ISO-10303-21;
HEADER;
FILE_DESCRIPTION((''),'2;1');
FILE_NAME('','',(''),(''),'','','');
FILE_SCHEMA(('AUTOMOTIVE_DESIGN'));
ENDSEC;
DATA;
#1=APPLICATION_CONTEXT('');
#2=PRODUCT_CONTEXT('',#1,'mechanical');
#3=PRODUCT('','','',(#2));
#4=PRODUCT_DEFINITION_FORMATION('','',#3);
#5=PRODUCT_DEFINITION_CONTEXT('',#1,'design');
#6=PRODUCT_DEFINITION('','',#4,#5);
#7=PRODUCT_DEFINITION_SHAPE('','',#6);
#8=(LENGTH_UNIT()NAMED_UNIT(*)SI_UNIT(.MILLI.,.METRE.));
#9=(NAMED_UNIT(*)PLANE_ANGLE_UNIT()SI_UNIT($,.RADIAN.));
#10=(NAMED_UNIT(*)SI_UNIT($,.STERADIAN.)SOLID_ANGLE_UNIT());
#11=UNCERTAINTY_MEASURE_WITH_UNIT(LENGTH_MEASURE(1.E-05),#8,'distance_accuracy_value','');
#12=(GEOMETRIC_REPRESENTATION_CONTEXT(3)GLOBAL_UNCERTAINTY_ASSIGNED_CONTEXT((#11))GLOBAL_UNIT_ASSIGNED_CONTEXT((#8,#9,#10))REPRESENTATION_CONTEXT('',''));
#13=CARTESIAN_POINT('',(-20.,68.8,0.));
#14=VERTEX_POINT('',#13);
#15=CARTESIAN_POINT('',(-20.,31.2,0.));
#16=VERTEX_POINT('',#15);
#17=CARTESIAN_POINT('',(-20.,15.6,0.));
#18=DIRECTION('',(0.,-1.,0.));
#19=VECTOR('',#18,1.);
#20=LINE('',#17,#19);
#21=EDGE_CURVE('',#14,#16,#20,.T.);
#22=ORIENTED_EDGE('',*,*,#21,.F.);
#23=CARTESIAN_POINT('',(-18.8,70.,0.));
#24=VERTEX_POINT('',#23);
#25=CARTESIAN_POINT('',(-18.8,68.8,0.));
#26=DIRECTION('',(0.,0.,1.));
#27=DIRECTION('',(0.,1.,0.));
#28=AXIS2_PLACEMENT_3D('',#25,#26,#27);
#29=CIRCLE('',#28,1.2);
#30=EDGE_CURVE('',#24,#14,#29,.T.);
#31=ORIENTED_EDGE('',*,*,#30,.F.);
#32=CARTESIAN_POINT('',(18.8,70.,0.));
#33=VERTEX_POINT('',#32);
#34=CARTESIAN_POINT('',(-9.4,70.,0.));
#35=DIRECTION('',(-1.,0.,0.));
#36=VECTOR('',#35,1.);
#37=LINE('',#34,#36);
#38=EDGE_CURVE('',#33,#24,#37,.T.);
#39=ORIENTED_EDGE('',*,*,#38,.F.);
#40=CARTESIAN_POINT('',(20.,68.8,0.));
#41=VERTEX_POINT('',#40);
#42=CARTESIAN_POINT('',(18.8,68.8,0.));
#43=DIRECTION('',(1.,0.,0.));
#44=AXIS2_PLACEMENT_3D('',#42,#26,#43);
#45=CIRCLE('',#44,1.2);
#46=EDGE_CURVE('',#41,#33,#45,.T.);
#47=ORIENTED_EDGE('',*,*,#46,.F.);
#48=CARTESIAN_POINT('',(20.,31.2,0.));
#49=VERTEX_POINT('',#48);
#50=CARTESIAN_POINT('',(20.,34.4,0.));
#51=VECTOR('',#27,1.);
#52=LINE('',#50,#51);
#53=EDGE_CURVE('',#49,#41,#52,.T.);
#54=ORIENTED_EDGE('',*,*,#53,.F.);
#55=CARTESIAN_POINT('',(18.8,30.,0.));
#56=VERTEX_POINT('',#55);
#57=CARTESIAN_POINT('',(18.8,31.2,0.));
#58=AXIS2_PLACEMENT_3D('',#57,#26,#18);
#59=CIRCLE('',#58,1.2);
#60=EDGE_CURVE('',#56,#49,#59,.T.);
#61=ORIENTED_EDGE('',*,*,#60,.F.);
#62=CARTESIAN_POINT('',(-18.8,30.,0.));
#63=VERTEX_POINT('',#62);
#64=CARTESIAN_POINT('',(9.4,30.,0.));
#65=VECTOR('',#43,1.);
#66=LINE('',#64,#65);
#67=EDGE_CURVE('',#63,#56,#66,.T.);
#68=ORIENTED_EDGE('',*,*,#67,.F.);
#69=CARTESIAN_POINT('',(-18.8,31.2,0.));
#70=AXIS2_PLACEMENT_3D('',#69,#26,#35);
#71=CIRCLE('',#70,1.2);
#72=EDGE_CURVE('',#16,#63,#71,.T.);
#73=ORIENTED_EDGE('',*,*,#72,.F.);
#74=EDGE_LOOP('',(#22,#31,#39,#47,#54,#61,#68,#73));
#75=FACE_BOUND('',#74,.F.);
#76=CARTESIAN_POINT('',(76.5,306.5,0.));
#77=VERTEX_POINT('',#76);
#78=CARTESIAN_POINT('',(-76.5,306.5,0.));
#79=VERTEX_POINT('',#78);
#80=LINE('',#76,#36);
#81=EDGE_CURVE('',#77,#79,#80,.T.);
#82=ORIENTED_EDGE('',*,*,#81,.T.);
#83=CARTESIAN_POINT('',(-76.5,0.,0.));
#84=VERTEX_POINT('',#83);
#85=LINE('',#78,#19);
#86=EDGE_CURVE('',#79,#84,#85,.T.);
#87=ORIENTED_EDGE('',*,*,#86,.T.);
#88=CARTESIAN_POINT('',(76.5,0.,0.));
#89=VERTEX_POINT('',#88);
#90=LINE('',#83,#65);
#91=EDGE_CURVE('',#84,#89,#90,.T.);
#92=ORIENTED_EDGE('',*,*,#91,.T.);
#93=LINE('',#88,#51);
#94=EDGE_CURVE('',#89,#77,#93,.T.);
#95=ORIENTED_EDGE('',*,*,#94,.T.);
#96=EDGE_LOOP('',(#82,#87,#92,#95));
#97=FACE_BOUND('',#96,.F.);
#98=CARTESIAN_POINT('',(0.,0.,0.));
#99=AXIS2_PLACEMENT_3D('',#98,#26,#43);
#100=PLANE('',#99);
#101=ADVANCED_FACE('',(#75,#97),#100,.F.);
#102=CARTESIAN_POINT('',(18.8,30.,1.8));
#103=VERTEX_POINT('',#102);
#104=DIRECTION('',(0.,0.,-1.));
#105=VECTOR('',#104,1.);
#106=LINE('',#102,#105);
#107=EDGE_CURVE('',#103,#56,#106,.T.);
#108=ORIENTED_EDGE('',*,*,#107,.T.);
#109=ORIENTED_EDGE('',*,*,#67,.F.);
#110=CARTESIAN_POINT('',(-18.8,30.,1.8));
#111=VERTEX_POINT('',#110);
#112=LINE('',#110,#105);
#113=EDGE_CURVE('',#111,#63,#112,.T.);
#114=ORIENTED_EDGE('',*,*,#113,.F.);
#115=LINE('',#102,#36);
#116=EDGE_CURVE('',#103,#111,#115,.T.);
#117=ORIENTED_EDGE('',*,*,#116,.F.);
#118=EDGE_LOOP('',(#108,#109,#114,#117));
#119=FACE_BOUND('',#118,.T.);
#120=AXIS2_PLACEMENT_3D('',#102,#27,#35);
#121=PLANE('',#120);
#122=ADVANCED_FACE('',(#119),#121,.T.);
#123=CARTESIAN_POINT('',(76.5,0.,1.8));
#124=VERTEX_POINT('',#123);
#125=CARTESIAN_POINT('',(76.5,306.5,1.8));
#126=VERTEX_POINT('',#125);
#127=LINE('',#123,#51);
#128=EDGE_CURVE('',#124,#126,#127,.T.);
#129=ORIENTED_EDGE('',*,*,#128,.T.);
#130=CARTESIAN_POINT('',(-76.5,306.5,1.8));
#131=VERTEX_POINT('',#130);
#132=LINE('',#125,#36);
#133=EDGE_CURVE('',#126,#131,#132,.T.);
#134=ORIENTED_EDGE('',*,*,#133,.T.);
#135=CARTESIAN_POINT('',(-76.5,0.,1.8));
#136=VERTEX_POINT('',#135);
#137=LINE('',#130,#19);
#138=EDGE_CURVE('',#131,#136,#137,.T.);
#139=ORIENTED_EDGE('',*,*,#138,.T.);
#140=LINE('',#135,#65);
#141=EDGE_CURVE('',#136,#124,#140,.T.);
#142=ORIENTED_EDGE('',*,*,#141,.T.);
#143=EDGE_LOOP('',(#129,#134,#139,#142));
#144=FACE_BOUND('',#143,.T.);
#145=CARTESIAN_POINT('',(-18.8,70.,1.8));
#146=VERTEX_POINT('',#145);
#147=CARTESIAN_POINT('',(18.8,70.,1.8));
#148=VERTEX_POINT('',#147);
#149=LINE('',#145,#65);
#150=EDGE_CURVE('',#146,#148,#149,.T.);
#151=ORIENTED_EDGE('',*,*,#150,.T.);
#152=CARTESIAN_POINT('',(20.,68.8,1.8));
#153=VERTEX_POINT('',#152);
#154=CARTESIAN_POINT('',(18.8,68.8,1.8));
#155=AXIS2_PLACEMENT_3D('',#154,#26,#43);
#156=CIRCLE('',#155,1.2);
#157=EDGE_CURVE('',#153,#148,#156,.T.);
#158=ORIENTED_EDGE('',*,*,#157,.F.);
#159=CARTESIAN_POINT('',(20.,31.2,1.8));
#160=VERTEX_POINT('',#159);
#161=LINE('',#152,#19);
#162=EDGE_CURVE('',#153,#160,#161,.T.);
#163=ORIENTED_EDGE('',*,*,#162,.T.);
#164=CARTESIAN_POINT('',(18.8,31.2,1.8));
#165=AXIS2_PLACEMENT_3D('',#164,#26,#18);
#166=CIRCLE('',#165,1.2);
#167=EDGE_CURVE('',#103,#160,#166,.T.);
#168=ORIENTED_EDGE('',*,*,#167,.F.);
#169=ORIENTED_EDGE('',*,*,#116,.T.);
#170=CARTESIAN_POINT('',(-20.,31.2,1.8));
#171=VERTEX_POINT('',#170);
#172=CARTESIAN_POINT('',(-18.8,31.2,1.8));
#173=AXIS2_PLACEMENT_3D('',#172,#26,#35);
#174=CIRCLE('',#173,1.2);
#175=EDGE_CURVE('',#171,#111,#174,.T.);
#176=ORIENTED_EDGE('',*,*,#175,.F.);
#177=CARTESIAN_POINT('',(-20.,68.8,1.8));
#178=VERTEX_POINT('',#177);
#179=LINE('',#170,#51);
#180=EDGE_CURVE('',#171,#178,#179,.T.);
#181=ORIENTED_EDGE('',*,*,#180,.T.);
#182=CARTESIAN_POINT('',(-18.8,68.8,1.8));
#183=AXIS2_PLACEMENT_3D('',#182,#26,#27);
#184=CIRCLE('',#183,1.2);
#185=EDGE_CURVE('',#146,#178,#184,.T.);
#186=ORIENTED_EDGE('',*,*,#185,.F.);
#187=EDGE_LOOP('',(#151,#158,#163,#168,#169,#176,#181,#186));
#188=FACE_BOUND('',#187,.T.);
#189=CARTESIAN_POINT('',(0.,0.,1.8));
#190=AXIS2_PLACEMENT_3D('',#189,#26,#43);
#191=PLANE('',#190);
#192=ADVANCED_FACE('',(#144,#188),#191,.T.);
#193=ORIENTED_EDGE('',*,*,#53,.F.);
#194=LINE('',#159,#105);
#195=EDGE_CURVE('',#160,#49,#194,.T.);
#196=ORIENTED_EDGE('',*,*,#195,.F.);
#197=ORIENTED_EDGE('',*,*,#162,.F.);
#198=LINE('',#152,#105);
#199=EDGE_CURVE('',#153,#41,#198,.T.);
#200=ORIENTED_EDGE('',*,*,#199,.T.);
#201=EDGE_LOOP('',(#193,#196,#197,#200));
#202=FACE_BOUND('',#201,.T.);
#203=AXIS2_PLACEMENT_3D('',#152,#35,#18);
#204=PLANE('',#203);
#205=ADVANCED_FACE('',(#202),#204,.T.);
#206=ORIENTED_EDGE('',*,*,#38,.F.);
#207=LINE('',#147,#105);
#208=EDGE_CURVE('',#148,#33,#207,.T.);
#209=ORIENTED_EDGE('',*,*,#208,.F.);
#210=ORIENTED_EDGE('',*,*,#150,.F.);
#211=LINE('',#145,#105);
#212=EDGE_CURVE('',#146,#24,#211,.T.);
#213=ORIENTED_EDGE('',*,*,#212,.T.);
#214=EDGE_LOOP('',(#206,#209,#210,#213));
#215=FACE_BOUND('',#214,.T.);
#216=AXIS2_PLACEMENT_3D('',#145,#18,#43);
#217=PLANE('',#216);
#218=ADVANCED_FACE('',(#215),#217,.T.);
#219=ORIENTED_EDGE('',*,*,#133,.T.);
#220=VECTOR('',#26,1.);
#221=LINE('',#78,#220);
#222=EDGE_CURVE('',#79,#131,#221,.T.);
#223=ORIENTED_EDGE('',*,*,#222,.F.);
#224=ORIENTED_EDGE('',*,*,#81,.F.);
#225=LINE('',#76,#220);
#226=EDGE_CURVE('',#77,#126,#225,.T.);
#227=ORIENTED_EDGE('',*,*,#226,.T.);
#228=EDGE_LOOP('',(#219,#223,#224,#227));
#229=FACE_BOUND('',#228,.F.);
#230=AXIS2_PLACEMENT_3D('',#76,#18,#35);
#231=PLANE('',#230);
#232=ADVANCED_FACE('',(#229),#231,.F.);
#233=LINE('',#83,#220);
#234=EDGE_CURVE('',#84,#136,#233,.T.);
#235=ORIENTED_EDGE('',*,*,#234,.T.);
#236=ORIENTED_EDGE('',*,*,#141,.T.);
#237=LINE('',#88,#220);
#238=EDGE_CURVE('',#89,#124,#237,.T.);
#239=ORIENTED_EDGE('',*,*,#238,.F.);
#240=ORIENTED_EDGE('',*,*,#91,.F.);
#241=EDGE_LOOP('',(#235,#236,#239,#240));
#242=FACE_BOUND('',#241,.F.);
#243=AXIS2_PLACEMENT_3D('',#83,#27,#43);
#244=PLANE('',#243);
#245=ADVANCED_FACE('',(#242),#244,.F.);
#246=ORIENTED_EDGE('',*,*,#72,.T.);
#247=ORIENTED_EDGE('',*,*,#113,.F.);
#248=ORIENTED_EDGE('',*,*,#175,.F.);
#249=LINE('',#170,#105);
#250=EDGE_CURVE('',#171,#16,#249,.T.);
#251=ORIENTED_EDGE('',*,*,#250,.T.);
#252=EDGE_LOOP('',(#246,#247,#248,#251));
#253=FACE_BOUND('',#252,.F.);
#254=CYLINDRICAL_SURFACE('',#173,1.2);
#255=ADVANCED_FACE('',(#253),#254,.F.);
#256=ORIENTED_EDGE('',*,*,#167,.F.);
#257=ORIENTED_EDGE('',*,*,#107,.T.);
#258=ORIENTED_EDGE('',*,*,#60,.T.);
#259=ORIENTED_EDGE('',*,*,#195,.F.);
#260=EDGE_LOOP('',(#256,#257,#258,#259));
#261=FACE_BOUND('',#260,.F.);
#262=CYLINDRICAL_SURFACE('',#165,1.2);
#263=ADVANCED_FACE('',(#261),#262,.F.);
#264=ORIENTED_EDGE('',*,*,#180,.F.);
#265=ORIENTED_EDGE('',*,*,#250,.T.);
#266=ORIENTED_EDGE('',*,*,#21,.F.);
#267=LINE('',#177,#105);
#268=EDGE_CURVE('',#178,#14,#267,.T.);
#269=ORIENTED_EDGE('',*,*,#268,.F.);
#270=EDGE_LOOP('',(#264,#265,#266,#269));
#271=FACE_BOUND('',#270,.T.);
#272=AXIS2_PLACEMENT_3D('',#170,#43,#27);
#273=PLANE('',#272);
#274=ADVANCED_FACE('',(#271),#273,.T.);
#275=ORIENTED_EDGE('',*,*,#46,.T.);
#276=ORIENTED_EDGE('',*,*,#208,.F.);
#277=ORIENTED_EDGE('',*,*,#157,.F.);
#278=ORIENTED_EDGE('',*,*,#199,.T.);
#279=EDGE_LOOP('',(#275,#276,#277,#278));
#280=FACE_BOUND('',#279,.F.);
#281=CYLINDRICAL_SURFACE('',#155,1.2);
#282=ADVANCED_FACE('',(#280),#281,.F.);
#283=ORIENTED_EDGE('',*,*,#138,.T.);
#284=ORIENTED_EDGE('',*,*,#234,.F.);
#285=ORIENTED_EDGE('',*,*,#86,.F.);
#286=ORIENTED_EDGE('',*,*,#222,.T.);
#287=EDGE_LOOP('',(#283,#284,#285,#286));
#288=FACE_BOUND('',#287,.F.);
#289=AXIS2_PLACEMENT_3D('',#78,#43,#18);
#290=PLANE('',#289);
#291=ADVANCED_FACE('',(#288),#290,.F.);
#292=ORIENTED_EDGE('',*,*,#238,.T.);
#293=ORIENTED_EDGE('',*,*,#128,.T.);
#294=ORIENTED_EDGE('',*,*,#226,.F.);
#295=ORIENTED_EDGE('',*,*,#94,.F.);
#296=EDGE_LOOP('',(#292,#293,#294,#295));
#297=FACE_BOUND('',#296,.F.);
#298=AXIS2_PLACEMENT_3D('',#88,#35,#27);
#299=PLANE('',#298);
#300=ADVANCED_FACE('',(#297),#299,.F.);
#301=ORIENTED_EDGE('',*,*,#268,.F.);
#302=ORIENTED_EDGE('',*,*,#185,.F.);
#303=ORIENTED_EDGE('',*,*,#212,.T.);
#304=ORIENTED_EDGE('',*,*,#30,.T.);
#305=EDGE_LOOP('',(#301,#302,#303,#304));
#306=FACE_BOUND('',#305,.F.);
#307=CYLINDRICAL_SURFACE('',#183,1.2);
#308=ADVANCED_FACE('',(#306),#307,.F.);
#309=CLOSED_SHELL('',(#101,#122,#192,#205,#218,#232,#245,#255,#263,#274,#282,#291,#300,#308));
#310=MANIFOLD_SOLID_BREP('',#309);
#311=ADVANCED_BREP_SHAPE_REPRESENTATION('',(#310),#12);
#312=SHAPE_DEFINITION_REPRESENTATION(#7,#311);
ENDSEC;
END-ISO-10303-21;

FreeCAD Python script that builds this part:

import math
import FreeCAD as App
import Part
import Sketcher

V = App.Vector
Q = App.Units.Quantity

doc = App.newDocument("Part")
params = doc.addObject("Spreadsheet::Sheet", "Params")
for row, (alias, value) in enumerate([
    ("sketch1_width", "153 mm"),
    ("sketch1_height", "306.5 mm"),
    ("pad1_length", "1.8 mm"),
    ("sketch2_radius", "1.2 mm"),
    ("sketch2_width", "37.6 mm"),
], start=1):
    params.set(f"A{row}", alias)
    params.set(f"B{row}", "=" + value)
    params.setAlias(f"B{row}", alias)

body = doc.addObject("PartDesign::Body", "Body")

sketch1 = body.newObject("Sketcher::SketchObject", "Sketch")
sketch1.AttachmentSupport = (doc.getObject("XY_Plane"), [""])
sketch1.MapMode = "FlatFace"
sketch1.addGeometry(Part.LineSegment(V(-76, 306, 0), V(-76, 0, 0)), False)
sketch1.addGeometry(Part.LineSegment(V(-76, 0, 0), V(76, 0, 0)), False)
sketch1.addGeometry(Part.LineSegment(V(76, 0, 0), V(76, 306, 0)), False)
sketch1.addGeometry(Part.LineSegment(V(76, 306, 0), V(-76, 306, 0)), False)
sketch1.addConstraint(Sketcher.Constraint("Coincident", 0, 2, 1, 1))
sketch1.addConstraint(Sketcher.Constraint("Coincident", 1, 2, 2, 1))
sketch1.addConstraint(Sketcher.Constraint("Coincident", 2, 2, 3, 1))
sketch1.addConstraint(Sketcher.Constraint("Coincident", 3, 2, 0, 1))
sketch1.addConstraint(Sketcher.Constraint("Vertical", 0))
sketch1.addConstraint(Sketcher.Constraint("Horizontal", 1))
sketch1.addConstraint(Sketcher.Constraint("Vertical", 2))
sketch1.addConstraint(Sketcher.Constraint("Horizontal", 3))
sketch1.addConstraint(Sketcher.Constraint("Symmetric", 0, 2, 1, 2, -1, 1))
sketch1.addConstraint(Sketcher.Constraint("DistanceX", 1, 1, 1, 2, Q("153 mm")))
sketch1.addConstraint(Sketcher.Constraint("DistanceY", 0, 2, 0, 1, Q("306.5 mm")))
sketch1.setExpression("Constraints[9]", "Params.sketch1_width")
sketch1.setExpression("Constraints[10]", "Params.sketch1_height")
pad1 = body.newObject("PartDesign::Pad", "Pad")
pad1.Profile = sketch1
pad1.setExpression("Length", "Params.pad1_length")

sketch2 = body.newObject("Sketcher::SketchObject", "Sketch001")
sketch2.AttachmentSupport = (doc.getObject("XY_Plane"), [""])
sketch2.MapMode = "FlatFace"
sketch2.AttachmentOffset = App.Placement(V(0, 0, 1.8), App.Rotation())
sketch2.addGeometry(Part.LineSegment(V(18.8, 70, 0), V(-18.8, 70, 0)), False)
sketch2.addGeometry(Part.ArcOfCircle(Part.Circle(V(-18.8, 68.8, 0), V(0, 0, 1), 1.2), math.radians(90), math.radians(180)), False)
sketch2.addGeometry(Part.LineSegment(V(-20, 68.8, 0), V(-20, 31.2, 0)), False)
sketch2.addGeometry(Part.ArcOfCircle(Part.Circle(V(-18.8, 31.2, 0), V(0, 0, 1), 1.2), math.radians(180), math.radians(270)), False)
sketch2.addGeometry(Part.LineSegment(V(-18.8, 30, 0), V(18.8, 30, 0)), False)
sketch2.addGeometry(Part.ArcOfCircle(Part.Circle(V(18.8, 31.2, 0), V(0, 0, 1), 1.2), math.radians(-90), math.radians(0)), False)
sketch2.addGeometry(Part.LineSegment(V(20, 31.2, 0), V(20, 68.8, 0)), False)
sketch2.addGeometry(Part.ArcOfCircle(Part.Circle(V(18.8, 68.8, 0), V(0, 0, 1), 1.2), math.radians(0), math.radians(90)), False)
sketch2.addConstraint(Sketcher.Constraint("Tangent", 0, 2, 1, 1))
sketch2.addConstraint(Sketcher.Constraint("Tangent", 1, 2, 2, 1))
sketch2.addConstraint(Sketcher.Constraint("Tangent", 2, 2, 3, 1))
sketch2.addConstraint(Sketcher.Constraint("Tangent", 3, 2, 4, 1))
sketch2.addConstraint(Sketcher.Constraint("Tangent", 4, 2, 5, 1))
sketch2.addConstraint(Sketcher.Constraint("Tangent", 5, 2, 6, 1))
sketch2.addConstraint(Sketcher.Constraint("Tangent", 6, 2, 7, 1))
sketch2.addConstraint(Sketcher.Constraint("Tangent", 7, 2, 0, 1))
sketch2.addConstraint(Sketcher.Constraint("Horizontal", 0))
sketch2.addConstraint(Sketcher.Constraint("Vertical", 2))
sketch2.addConstraint(Sketcher.Constraint("Horizontal", 4))
sketch2.addConstraint(Sketcher.Constraint("Vertical", 6))
sketch2.addConstraint(Sketcher.Constraint("Equal", 1, 3))
sketch2.addConstraint(Sketcher.Constraint("Equal", 3, 5))
sketch2.addConstraint(Sketcher.Constraint("Equal", 5, 7))
sketch2.addConstraint(Sketcher.Constraint("Equal", 4, 2))
sketch2.addConstraint(Sketcher.Constraint("Radius", 1, Q("1.2 mm")))
sketch2.addConstraint(Sketcher.Constraint("DistanceY", -1, 1, 3, 2, Q("30 mm")))
sketch2.addConstraint(Sketcher.Constraint("DistanceX", 0, 2, 0, 1, Q("37.6 mm")))
sketch2.addConstraint(Sketcher.Constraint("DistanceX", 1, 2, -1, 1, Q("20 mm")))
sketch2.setExpression("Constraints[16]", "Params.sketch2_radius")
sketch2.setExpression("Constraints[18]", "Params.sketch2_width")
pocket1 = body.newObject("PartDesign::Pocket", "Pocket")
pocket1.Profile = sketch2
pocket1.Type = "UpToFirst"

doc.recompute()
